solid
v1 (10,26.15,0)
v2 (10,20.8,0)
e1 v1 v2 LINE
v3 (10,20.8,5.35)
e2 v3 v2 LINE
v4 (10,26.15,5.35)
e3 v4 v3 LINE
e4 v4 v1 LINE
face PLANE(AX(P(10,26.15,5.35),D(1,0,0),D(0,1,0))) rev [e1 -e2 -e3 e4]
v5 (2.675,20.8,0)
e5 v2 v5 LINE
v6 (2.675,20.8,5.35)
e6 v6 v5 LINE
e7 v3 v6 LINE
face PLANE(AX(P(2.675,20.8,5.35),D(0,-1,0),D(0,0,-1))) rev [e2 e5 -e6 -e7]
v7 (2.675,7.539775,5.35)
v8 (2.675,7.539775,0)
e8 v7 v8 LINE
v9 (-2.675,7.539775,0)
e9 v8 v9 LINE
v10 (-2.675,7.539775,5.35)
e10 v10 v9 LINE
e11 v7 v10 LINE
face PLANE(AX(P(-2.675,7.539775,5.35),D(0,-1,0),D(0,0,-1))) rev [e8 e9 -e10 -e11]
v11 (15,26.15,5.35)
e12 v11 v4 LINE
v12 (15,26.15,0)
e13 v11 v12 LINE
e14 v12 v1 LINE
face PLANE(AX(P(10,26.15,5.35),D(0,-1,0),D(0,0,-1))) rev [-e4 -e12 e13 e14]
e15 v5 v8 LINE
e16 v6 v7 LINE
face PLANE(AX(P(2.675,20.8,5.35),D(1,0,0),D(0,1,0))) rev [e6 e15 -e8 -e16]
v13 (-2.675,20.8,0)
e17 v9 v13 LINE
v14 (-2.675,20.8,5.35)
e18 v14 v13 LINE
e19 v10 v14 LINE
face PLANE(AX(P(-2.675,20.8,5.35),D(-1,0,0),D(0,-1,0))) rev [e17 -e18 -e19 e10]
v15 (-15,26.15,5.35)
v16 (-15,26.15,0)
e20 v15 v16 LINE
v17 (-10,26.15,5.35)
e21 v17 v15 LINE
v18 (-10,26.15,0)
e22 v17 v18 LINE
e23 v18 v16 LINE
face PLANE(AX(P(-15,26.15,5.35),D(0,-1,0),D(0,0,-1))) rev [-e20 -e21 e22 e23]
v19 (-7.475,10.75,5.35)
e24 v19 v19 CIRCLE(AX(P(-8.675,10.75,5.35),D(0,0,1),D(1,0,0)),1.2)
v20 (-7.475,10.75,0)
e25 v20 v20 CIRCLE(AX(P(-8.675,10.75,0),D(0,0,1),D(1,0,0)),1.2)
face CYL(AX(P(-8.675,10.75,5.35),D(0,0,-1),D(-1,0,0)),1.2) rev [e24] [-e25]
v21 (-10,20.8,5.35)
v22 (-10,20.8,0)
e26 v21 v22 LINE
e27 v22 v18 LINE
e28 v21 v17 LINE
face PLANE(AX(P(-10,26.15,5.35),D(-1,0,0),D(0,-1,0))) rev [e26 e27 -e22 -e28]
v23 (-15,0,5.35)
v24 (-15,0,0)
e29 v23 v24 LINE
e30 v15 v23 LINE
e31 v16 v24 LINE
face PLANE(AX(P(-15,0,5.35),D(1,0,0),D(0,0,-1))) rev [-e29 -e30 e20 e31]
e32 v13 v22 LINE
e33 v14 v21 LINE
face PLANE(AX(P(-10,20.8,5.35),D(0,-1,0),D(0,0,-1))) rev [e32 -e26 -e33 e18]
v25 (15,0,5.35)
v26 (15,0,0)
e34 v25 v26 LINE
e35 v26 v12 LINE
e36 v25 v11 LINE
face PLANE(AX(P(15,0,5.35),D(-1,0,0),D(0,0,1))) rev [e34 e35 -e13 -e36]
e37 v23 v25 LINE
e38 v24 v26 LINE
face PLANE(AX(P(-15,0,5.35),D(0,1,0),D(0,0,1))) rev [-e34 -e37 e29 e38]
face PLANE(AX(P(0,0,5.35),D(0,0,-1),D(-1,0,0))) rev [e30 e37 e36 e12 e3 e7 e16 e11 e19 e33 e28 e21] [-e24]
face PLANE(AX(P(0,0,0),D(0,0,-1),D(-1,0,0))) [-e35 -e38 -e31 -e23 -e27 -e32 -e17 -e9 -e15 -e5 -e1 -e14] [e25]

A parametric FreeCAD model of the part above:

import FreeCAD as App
import Part
import Sketcher
Q = App.Units.Quantity

doc = App.newDocument("Part")
body = doc.addObject("PartDesign::Body", "Body")

sketch1 = body.newObject("Sketcher::SketchObject", "Sketch")
sketch1.AttachmentSupport = (doc.getObject("XY_Plane"), [""])
sketch1.MapMode = "FlatFace"
sketch1.addGeometry(Part.LineSegment(App.Vector(15, 26.1, 0), App.Vector(10, 26.1, 0)), False)
sketch1.addGeometry(Part.LineSegment(App.Vector(10, 26.1, 0), App.Vector(10, 20.8, 0)), False)
sketch1.addGeometry(Part.LineSegment(App.Vector(10, 20.8, 0), App.Vector(2.7, 20.8, 0)), False)
sketch1.addGeometry(Part.LineSegment(App.Vector(2.7, 20.8, 0), App.Vector(2.7, 7.5, 0)), False)
sketch1.addGeometry(Part.LineSegment(App.Vector(2.7, 7.5, 0), App.Vector(-2.7, 7.5, 0)), False)
sketch1.addGeometry(Part.LineSegment(App.Vector(-2.7, 7.5, 0), App.Vector(-2.7, 20.8, 0)), False)
sketch1.addGeometry(Part.LineSegment(App.Vector(-2.7, 20.8, 0), App.Vector(-10, 20.8, 0)), False)
sketch1.addGeometry(Part.LineSegment(App.Vector(-10, 20.8, 0), App.Vector(-10, 26.1, 0)), False)
sketch1.addGeometry(Part.LineSegment(App.Vector(-10, 26.1, 0), App.Vector(-15, 26.1, 0)), False)
sketch1.addGeometry(Part.LineSegment(App.Vector(-15, 26.1, 0), App.Vector(-15, 0, 0)), False)
sketch1.addGeometry(Part.LineSegment(App.Vector(-15, 0, 0), App.Vector(15, 0, 0)), False)
sketch1.addGeometry(Part.LineSegment(App.Vector(15, 0, 0), App.Vector(15, 26.1, 0)), False)
sketch1.addGeometry(Part.Circle(App.Vector(-8.7, 10.8, 0), App.Vector(0, 0, 1), 1.2), False)
sketch1.addConstraint(Sketcher.Constraint("Coincident", 0, 2, 1, 1))
sketch1.addConstraint(Sketcher.Constraint("Coincident", 1, 2, 2, 1))
sketch1.addConstraint(Sketcher.Constraint("Coincident", 2, 2, 3, 1))
sketch1.addConstraint(Sketcher.Constraint("Coincident", 3, 2, 4, 1))
sketch1.addConstraint(Sketcher.Constraint("Coincident", 4, 2, 5, 1))
sketch1.addConstraint(Sketcher.Constraint("Coincident", 5, 2, 6, 1))
sketch1.addConstraint(Sketcher.Constraint("Coincident", 6, 2, 7, 1))
sketch1.addConstraint(Sketcher.Constraint("Coincident", 7, 2, 8, 1))
sketch1.addConstraint(Sketcher.Constraint("Coincident", 8, 2, 9, 1))
sketch1.addConstraint(Sketcher.Constraint("Coincident", 9, 2, 10, 1))
sketch1.addConstraint(Sketcher.Constraint("Coincident", 10, 2, 11, 1))
sketch1.addConstraint(Sketcher.Constraint("Coincident", 11, 2, 0, 1))
sketch1.addConstraint(Sketcher.Constraint("Horizontal", 0))
sketch1.addConstraint(Sketcher.Constraint("Vertical", 1))
sketch1.addConstraint(Sketcher.Constraint("Horizontal", 2))
sketch1.addConstraint(Sketcher.Constraint("Vertical", 3))
sketch1.addConstraint(Sketcher.Constraint("Horizontal", 4))
sketch1.addConstraint(Sketcher.Constraint("Vertical", 5))
sketch1.addConstraint(Sketcher.Constraint("Horizontal", 6))
sketch1.addConstraint(Sketcher.Constraint("Vertical", 7))
sketch1.addConstraint(Sketcher.Constraint("Horizontal", 8))
sketch1.addConstraint(Sketcher.Constraint("Vertical", 9))
sketch1.addConstraint(Sketcher.Constraint("Horizontal", 10))
sketch1.addConstraint(Sketcher.Constraint("Vertical", 11))
sketch1.addConstraint(Sketcher.Constraint("Symmetric", 9, 2, 10, 2, -1, 1))
sketch1.addConstraint(Sketcher.Constraint("Symmetric", 2, 2, 5, 2, -2))
sketch1.addConstraint(Sketcher.Constraint("Symmetric", 0, 2, 7, 2, -2))
sketch1.addConstraint(Sketcher.Constraint("Equal", 4, 1))
sketch1.addConstraint(Sketcher.Constraint("Diameter", 12, Q("2.4 mm")))
sketch1.addConstraint(Sketcher.Constraint("DistanceX", 0, 2, 0, 1, Q("5 mm")))
sketch1.addConstraint(Sketcher.Constraint("DistanceX", 10, 1, 10, 2, Q("30 mm")))
sketch1.addConstraint(Sketcher.Constraint("DistanceX", 12, 3, 4, 2, Q("6 mm")))
sketch1.addConstraint(Sketcher.Constraint("DistanceX", 4, 2, 4, 1, Q("5.35 mm")))
sketch1.addConstraint(Sketcher.Constraint("DistanceY", 9, 2, 9, 1, Q("26.15 mm")))
sketch1.addConstraint(Sketcher.Constraint("DistanceY", 12, 3, 0, 2, Q("15.4 mm")))
sketch1.addConstraint(Sketcher.Constraint("DistanceY", 3, 2, 3, 1, Q("13.260225 mm")))
pad1 = body.newObject("PartDesign::Pad", "Pad")
pad1.Profile = sketch1
pad1.Length = 5.35

doc.recompute()
